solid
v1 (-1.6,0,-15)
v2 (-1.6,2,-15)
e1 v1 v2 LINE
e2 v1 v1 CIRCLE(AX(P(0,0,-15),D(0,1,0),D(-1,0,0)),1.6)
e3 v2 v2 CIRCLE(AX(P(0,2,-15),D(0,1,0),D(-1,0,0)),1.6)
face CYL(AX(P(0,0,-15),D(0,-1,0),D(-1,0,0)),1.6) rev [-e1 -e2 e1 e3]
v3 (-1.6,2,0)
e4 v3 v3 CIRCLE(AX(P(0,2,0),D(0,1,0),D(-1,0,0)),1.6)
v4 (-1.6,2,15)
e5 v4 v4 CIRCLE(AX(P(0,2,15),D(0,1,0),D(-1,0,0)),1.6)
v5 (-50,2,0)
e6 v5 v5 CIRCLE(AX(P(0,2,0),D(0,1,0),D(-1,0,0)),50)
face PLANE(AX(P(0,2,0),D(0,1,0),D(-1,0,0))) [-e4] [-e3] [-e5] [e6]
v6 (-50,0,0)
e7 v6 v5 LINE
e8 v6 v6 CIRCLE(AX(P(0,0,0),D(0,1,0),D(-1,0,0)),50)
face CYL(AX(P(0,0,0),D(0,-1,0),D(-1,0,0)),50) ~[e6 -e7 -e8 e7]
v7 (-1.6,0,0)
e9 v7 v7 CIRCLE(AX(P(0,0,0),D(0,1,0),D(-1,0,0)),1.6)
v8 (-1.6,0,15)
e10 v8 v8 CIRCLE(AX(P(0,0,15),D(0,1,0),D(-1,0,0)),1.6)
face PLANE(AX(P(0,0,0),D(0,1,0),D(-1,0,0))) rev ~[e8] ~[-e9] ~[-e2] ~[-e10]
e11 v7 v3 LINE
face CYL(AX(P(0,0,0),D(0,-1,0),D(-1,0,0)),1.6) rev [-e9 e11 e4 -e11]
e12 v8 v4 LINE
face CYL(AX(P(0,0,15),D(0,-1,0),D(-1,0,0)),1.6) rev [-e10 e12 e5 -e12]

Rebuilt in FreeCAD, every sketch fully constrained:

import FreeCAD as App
import Part
import Sketcher

V = App.Vector

doc = App.newDocument("Part")
body = doc.addObject("PartDesign::Body", "Body")

# Sketch on XZ plane
sketch1 = body.newObject("Sketcher::SketchObject", "Sketch")
sketch1.AttachmentSupport = (doc.getObject("XZ_Plane"), [""])
sketch1.MapMode = "FlatFace"
sketch1.addGeometry([
    Part.Circle(V(0, 0, 0), V(0, 0, 1), 50),
    Part.Circle(V(0, -15, 0), V(0, 0, 1), 1.6),
    Part.Circle(V(0, 0, 0), V(0, 0, 1), 1.6),
    Part.Circle(V(0, 15, 0), V(0, 0, 1), 1.6),
], False)
sketch1.addConstraint([
    Sketcher.Constraint("Coincident", 0, 3, -1, 1),
    Sketcher.Constraint("Coincident", 2, 3, -1, 1),
    Sketcher.Constraint("Equal", 1, 2),
    Sketcher.Constraint("Equal", 2, 3),
    Sketcher.Constraint("Symmetric", 1, 3, 3, 3, -1, 1),
    Sketcher.Constraint("PointOnObject", 1, 3, -2),
    Sketcher.Constraint("Diameter", 0, 100.0),
    Sketcher.Constraint("Diameter", 1, 3.2),
    Sketcher.Constraint("DistanceY", 1, 3, -1, 1, 15.0),
])
pad1 = body.newObject("PartDesign::Pad", "Pad")
pad1.Profile = sketch1
pad1.Length = 2
pad1.Reversed = True

doc.recompute()
